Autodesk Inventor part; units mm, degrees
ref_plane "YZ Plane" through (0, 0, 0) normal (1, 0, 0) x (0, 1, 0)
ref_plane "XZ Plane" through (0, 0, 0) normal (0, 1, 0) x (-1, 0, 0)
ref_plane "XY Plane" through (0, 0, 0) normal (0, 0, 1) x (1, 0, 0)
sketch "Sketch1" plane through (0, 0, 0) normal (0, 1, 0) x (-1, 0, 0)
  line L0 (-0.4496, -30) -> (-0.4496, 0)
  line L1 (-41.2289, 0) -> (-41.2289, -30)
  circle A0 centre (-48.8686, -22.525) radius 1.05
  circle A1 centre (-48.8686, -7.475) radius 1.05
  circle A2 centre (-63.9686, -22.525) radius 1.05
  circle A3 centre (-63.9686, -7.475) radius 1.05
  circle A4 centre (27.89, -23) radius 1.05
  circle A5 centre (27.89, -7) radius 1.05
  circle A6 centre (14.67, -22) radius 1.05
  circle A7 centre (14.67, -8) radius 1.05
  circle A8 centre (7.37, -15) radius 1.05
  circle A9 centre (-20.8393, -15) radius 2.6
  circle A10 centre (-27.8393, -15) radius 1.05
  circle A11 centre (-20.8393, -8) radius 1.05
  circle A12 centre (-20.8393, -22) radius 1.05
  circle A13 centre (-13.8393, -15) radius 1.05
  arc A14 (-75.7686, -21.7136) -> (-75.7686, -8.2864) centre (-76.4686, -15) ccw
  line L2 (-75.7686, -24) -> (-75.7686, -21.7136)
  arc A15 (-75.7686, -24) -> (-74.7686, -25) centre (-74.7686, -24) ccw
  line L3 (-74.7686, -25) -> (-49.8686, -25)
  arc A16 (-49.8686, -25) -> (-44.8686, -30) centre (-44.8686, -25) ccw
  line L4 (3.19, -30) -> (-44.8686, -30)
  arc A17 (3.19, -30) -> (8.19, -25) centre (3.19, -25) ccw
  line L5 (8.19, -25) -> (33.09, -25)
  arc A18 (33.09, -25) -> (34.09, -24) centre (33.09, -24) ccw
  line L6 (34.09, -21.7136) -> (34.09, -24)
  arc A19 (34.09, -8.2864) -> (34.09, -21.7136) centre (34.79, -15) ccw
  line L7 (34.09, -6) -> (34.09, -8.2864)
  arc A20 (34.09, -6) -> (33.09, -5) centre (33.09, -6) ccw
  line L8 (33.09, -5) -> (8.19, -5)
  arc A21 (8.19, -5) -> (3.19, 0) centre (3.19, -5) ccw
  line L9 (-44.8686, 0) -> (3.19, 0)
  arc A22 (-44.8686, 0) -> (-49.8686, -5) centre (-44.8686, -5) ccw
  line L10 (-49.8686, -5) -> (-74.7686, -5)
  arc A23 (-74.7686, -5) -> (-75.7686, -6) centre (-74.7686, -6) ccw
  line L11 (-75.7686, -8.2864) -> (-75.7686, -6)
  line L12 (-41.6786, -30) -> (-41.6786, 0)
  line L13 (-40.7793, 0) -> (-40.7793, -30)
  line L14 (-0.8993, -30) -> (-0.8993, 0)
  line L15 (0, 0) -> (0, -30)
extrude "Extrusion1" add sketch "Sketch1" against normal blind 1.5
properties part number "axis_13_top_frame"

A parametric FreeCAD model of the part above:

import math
import FreeCAD as App
import Part
import Sketcher
Q = App.Units.Quantity

doc = App.newDocument("Part")
body = doc.addObject("PartDesign::Body", "Body")

sketch1 = body.newObject("Sketcher::SketchObject", "Sketch")
sketch1.AttachmentSupport = (doc.getObject("XZ_Plane"), [""])
sketch1.MapMode = "FlatFace"
sketch1.addGeometry([
    Part.ArcOfCircle(Part.Circle(App.Vector(-3.2, -25, 0), App.Vector(0, 0, 1), 5), math.radians(180), math.radians(270)),
    Part.LineSegment(App.Vector(-8.2, -25, 0), App.Vector(-33.1, -25, 0)),
    Part.ArcOfCircle(Part.Circle(App.Vector(-33.1, -24, 0), App.Vector(0, 0, 1), 1), math.radians(180), math.radians(270)),
    Part.LineSegment(App.Vector(-34.1, -24, 0), App.Vector(-34.1, -21.7, 0)),
    Part.ArcOfCircle(Part.Circle(App.Vector(-34.8, -15, 0), App.Vector(0, 0, 1), 6.7), math.radians(-84), math.radians(84)),
    Part.LineSegment(App.Vector(-34.1, -8.3, 0), App.Vector(-34.1, -6, 0)),
    Part.ArcOfCircle(Part.Circle(App.Vector(-33.1, -6, 0), App.Vector(0, 0, 1), 1), math.radians(90), math.radians(180)),
    Part.LineSegment(App.Vector(-33.1, -5, 0), App.Vector(-8.2, -5, 0)),
    Part.ArcOfCircle(Part.Circle(App.Vector(-3.2, -5, 0), App.Vector(0, 0, 1), 5), math.radians(90), math.radians(180)),
    Part.LineSegment(App.Vector(-3.2, 0, 0), App.Vector(44.9, 0, 0)),
    Part.ArcOfCircle(Part.Circle(App.Vector(44.9, -5, 0), App.Vector(0, 0, 1), 5), math.radians(0), math.radians(90)),
    Part.LineSegment(App.Vector(49.9, -5, 0), App.Vector(74.8, -5, 0)),
    Part.ArcOfCircle(Part.Circle(App.Vector(74.8, -6, 0), App.Vector(0, 0, 1), 1), math.radians(0), math.radians(90)),
    Part.LineSegment(App.Vector(75.8, -6, 0), App.Vector(75.8, -8.3, 0)),
    Part.ArcOfCircle(Part.Circle(App.Vector(76.5, -15, 0), App.Vector(0, 0, 1), 6.7), math.radians(96), math.radians(264)),
    Part.LineSegment(App.Vector(75.8, -21.7, 0), App.Vector(75.8, -24, 0)),
    Part.ArcOfCircle(Part.Circle(App.Vector(74.8, -24, 0), App.Vector(0, 0, 1), 1), math.radians(-90), math.radians(0)),
    Part.LineSegment(App.Vector(74.8, -25, 0), App.Vector(49.9, -25, 0)),
    Part.ArcOfCircle(Part.Circle(App.Vector(44.9, -25, 0), App.Vector(0, 0, 1), 5), math.radians(-90), math.radians(0)),
    Part.LineSegment(App.Vector(44.9, -30, 0), App.Vector(-3.2, -30, 0)),
    Part.Circle(App.Vector(13.8, -15, 0), App.Vector(0, 0, 1), 1.1),
    Part.Circle(App.Vector(20.8, -22, 0), App.Vector(0, 0, 1), 1.1),
    Part.Circle(App.Vector(27.8, -15, 0), App.Vector(0, 0, 1), 1.1),
    Part.Circle(App.Vector(20.8, -15, 0), App.Vector(0, 0, 1), 2.6),
    Part.Circle(App.Vector(20.8, -8, 0), App.Vector(0, 0, 1), 1.1),
    Part.Circle(App.Vector(-27.9, -7, 0), App.Vector(0, 0, 1), 1.1),
    Part.Circle(App.Vector(-27.9, -23, 0), App.Vector(0, 0, 1), 1.1),
    Part.Circle(App.Vector(-14.7, -22, 0), App.Vector(0, 0, 1), 1.1),
    Part.Circle(App.Vector(-7.4, -15, 0), App.Vector(0, 0, 1), 1.1),
    Part.Circle(App.Vector(-14.7, -8, 0), App.Vector(0, 0, 1), 1.1),
    Part.Circle(App.Vector(48.9, -7.5, 0), App.Vector(0, 0, 1), 1.1),
    Part.Circle(App.Vector(64, -22.5, 0), App.Vector(0, 0, 1), 1.1),
    Part.Circle(App.Vector(48.9, -22.5, 0), App.Vector(0, 0, 1), 1.1),
    Part.Circle(App.Vector(64, -7.5, 0), App.Vector(0, 0, 1), 1.1),
], False)
sketch1.addConstraint([
    Sketcher.Constraint("Coincident", 0, 1, 1, 1),
    Sketcher.Constraint("Tangent", 1, 2, 2, 2),
    Sketcher.Constraint("Tangent", 2, 1, 3, 1),
    Sketcher.Constraint("Coincident", 3, 2, 4, 1),
    Sketcher.Constraint("Coincident", 4, 2, 5, 1),
    Sketcher.Constraint("Tangent", 5, 2, 6, 2),
    Sketcher.Constraint("Tangent", 6, 1, 7, 1),
    Sketcher.Constraint("Coincident", 7, 2, 8, 2),
    Sketcher.Constraint("Tangent", 8, 1, 9, 1),
    Sketcher.Constraint("Tangent", 9, 2, 10, 2),
    Sketcher.Constraint("Coincident", 10, 1, 11, 1),
    Sketcher.Constraint("Tangent", 11, 2, 12, 2),
    Sketcher.Constraint("Tangent", 12, 1, 13, 1),
    Sketcher.Constraint("Coincident", 13, 2, 14, 1),
    Sketcher.Constraint("Coincident", 14, 2, 15, 1),
    Sketcher.Constraint("Tangent", 15, 2, 16, 2),
    Sketcher.Constraint("Tangent", 16, 1, 17, 1),
    Sketcher.Constraint("Coincident", 17, 2, 18, 2),
    Sketcher.Constraint("Tangent", 18, 1, 19, 1),
    Sketcher.Constraint("Tangent", 19, 2, 0, 2),
    Sketcher.Constraint("Horizontal", 1),
    Sketcher.Constraint("Vertical", 3),
    Sketcher.Constraint("Vertical", 5),
    Sketcher.Constraint("Horizontal", 7),
    Sketcher.Constraint("Horizontal", 9),
    Sketcher.Constraint("Horizontal", 11),
    Sketcher.Constraint("Vertical", 13),
    Sketcher.Constraint("Vertical", 15),
    Sketcher.Constraint("Horizontal", 17),
    Sketcher.Constraint("Horizontal", 19),
    Sketcher.Constraint("Equal", 2, 6),
    Sketcher.Constraint("Equal", 0, 8),
    Sketcher.Constraint("Equal", 8, 10),
    Sketcher.Constraint("Equal", 6, 12),
    Sketcher.Constraint("Equal", 4, 14),
    Sketcher.Constraint("Equal", 12, 16),
    Sketcher.Constraint("Equal", 10, 18),
    Sketcher.Constraint("Equal", 20, 21),
    Sketcher.Constraint("Equal", 21, 22),
    Sketcher.Constraint("Equal", 22, 24),
    Sketcher.Constraint("Equal", 24, 25),
    Sketcher.Constraint("Equal", 25, 26),
    Sketcher.Constraint("Equal", 26, 27),
    Sketcher.Constraint("Equal", 27, 28),
    Sketcher.Constraint("Equal", 28, 29),
    Sketcher.Constraint("Equal", 29, 30),
    Sketcher.Constraint("Equal", 30, 31),
    Sketcher.Constraint("Equal", 31, 32),
    Sketcher.Constraint("Equal", 32, 33),
    Sketcher.Constraint("PointOnObject", 8, 1, -1),
    Sketcher.Constraint("Horizontal", 6, 3, 12, 3),
    Sketcher.Constraint("Horizontal", 4, 3, 14, 3),
    Sketcher.Constraint("Horizontal", 2, 3, 16, 3),
    Sketcher.Constraint("Horizontal", 14, 3, 20, 3),
    Sketcher.Constraint("Horizontal", 20, 3, 22, 3),
    Sketcher.Constraint("Horizontal", 22, 3, 23, 3),
    Sketcher.Constraint("Horizontal", 21, 3, 27, 3),
    Sketcher.Constraint("Horizontal", 23, 3, 28, 3),
    Sketcher.Constraint("Horizontal", 24, 3, 29, 3),
    Sketcher.Constraint("Horizontal", 31, 3, 32, 3),
    Sketcher.Constraint("Horizontal", 30, 3, 33, 3),
    Sketcher.Constraint("Horizontal", 18, 3, 0, 1),
    Sketcher.Constraint("Horizontal", 10, 3, 6, 1),
    Sketcher.Constraint("Horizontal", 4, 2, 13, 2),
    Sketcher.Constraint("Horizontal", 3, 2, 14, 2),
    Sketcher.Constraint("Vertical", 2, 3, 6, 3),
    Sketcher.Constraint("Vertical", 0, 3, 8, 3),
    Sketcher.Constraint("Vertical", 10, 3, 18, 3),
    Sketcher.Constraint("Vertical", 21, 3, 23, 3),
    Sketcher.Constraint("Vertical", 23, 3, 24, 3),
    Sketcher.Constraint("Vertical", 25, 3, 26, 3),
    Sketcher.Constraint("Vertical", 27, 3, 29, 3),
    Sketcher.Constraint("Vertical", 30, 3, 32, 3),
    Sketcher.Constraint("Vertical", 31, 3, 33, 3),
    Sketcher.Constraint("Equal", 7, 11),
    Sketcher.Constraint("Equal", 3, 5),
    Sketcher.Constraint("Radius", 0, Q("5 mm")),
    Sketcher.Constraint("Radius", 2, Q("1 mm")),
    Sketcher.Constraint("Diameter", 20, Q("2.1 mm")),
    Sketcher.Constraint("Diameter", 23, Q("5.2 mm")),
    Sketcher.Constraint("Radius", 4, Q("6.75 mm")),
    Sketcher.Constraint("DistanceX", 1, 2, 1, 1, Q("24.9 mm")),
    Sketcher.Constraint("DistanceY", 0, 3, -1, 1, Q("25 mm")),
    Sketcher.Constraint("DistanceY", 21, 3, -1, 1, Q("22 mm")),
    Sketcher.Constraint("DistanceY", 24, 3, -1, 1, Q("8 mm")),
    Sketcher.Constraint("DistanceY", 25, 3, -1, 1, Q("7 mm")),
    Sketcher.Constraint("DistanceY", 26, 3, -1, 1, Q("23 mm")),
    Sketcher.Constraint("DistanceX", 20, 3, 21, 3, Q("7 mm")),
    Sketcher.Constraint("DistanceX", 21, 3, 22, 3, Q("7 mm")),
    Sketcher.Constraint("DistanceX", 10, 3, 30, 3, Q("4 mm")),
    Sketcher.Constraint("DistanceX", 4, 3, 2, 3, Q("1.7 mm")),
    Sketcher.Constraint("DistanceX", 6, 3, 25, 3, Q("5.2 mm")),
    Sketcher.Constraint("DistanceX", 27, 3, 28, 3, Q("7.3 mm")),
    Sketcher.Constraint("DistanceX", 31, 3, 16, 3, Q("10.8 mm")),
    Sketcher.Constraint("DistanceX", 0, 3, -1, 1, Q("3.19 mm")),
    Sketcher.Constraint("DistanceX", 27, 3, -1, 1, Q("14.67 mm")),
    Sketcher.Constraint("DistanceY", 31, 3, 30, 3, Q("15.05 mm")),
    Sketcher.Constraint("DistanceX", 9, 1, 9, 2, Q("48.0586 mm")),
    Sketcher.Constraint("DistanceY", 30, 3, -1, 1, Q("7.475 mm")),
    Sketcher.Constraint("DistanceX", -1, 1, 20, 3, Q("13.8393 mm")),
])
pad1 = body.newObject("PartDesign::Pad", "Pad")
pad1.Profile = sketch1
pad1.Length = 1.5

doc.recompute()
